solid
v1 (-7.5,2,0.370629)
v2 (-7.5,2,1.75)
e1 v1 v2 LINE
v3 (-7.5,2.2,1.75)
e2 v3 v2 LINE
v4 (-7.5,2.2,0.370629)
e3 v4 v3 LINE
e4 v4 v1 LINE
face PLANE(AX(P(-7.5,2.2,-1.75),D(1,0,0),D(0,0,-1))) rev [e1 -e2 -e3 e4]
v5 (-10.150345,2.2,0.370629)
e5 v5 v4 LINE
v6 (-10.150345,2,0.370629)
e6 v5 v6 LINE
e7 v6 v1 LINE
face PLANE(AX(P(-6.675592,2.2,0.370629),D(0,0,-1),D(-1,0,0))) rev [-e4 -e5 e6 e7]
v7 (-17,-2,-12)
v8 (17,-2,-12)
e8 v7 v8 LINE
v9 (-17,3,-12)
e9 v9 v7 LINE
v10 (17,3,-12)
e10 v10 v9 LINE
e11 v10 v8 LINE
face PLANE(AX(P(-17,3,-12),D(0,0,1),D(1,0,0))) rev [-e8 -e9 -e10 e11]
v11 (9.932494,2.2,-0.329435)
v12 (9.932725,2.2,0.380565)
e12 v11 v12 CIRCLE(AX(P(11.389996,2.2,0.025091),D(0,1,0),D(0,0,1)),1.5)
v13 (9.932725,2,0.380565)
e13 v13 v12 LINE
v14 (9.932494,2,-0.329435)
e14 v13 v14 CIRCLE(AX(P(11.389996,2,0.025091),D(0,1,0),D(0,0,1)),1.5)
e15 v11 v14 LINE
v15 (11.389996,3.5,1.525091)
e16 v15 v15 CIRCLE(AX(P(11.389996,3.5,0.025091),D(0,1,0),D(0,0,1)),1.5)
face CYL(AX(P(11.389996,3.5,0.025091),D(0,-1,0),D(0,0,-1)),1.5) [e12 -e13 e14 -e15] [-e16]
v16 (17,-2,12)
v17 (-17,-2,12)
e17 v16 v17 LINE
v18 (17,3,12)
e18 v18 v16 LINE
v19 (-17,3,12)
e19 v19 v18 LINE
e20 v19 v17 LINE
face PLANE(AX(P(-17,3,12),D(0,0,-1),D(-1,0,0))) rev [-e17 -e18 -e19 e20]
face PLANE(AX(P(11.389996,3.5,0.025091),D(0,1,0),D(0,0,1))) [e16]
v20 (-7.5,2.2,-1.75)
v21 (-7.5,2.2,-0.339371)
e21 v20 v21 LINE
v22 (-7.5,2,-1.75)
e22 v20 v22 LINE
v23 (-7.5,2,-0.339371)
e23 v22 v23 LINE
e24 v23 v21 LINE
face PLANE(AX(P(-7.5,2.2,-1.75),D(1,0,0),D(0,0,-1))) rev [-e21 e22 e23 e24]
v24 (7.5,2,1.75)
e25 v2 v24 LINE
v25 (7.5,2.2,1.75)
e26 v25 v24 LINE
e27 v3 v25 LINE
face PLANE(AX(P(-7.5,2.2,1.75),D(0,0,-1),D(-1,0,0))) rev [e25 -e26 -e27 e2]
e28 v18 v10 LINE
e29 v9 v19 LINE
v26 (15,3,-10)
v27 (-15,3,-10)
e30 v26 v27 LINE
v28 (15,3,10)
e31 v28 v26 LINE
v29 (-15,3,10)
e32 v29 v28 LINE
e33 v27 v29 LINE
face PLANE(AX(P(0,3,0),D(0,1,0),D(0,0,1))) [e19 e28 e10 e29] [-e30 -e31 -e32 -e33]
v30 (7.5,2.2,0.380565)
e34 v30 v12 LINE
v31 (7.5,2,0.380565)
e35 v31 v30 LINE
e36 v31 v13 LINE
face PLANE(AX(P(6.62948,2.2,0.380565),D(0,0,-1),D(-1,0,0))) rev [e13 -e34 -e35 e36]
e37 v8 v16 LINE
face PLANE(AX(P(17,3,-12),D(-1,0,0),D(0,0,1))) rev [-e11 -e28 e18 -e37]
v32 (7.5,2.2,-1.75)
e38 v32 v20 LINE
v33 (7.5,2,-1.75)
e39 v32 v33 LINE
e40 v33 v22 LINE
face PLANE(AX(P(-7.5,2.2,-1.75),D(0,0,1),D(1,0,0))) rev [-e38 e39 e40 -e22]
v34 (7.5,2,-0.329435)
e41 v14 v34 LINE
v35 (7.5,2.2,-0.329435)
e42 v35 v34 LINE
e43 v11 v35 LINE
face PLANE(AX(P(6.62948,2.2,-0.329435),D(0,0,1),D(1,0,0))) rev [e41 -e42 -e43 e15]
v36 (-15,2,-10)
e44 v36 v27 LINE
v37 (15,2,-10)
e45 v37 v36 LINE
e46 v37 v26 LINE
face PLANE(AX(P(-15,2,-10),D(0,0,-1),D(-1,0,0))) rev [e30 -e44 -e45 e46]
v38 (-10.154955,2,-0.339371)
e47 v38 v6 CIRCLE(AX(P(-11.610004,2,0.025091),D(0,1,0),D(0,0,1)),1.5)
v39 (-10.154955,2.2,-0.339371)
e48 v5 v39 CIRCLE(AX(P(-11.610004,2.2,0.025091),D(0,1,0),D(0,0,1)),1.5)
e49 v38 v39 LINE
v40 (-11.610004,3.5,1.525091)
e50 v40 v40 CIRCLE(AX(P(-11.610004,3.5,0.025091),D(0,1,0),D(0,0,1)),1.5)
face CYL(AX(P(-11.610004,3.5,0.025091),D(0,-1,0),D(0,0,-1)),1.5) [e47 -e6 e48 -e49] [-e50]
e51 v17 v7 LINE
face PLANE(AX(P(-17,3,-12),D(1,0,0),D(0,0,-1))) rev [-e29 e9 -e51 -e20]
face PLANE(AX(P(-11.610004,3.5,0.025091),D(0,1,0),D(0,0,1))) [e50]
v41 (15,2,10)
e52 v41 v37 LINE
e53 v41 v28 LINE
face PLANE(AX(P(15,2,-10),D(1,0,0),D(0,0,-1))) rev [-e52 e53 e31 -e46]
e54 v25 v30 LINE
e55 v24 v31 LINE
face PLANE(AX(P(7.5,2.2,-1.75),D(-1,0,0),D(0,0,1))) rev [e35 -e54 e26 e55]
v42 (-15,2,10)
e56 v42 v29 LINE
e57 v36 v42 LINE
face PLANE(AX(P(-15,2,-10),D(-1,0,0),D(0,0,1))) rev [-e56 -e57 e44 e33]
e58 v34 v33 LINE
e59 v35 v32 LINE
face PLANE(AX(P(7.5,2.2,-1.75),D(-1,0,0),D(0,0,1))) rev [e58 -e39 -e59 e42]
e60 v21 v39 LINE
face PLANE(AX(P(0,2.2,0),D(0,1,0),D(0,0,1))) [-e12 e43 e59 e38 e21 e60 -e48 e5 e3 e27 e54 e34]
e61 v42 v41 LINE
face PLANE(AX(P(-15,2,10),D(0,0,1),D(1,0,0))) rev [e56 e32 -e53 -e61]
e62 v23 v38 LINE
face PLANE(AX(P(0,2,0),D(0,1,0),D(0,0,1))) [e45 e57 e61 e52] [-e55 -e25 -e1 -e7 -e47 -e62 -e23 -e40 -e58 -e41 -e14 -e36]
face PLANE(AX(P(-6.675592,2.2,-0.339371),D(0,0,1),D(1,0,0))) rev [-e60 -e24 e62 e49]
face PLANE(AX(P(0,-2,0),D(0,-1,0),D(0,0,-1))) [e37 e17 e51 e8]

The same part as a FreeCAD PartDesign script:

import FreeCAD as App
import Part
import Sketcher


def add_polygon(sketch, points):
    """Adds a closed chain of lines whose ends are joined by coincident constraints."""
    first, n = sketch.GeometryCount, len(points)
    for a, b in zip(points, points[1:] + points[:1]):
        sketch.addGeometry(Part.LineSegment(App.Vector(*a, 0), App.Vector(*b, 0)), False)
    for i in range(n):
        sketch.addConstraint(Sketcher.Constraint("Coincident", first + i, 2, first + (i + 1) % n, 1))

doc = App.newDocument("Part")
params = doc.addObject("Spreadsheet::Sheet", "Params")
for row, (alias, value) in enumerate([
    ("sketch1_width", "34 mm"),
    ("sketch1_height", "24 mm"),
    ("pad1_length", "3 mm"),
    ("sketch2_width", "30 mm"),
    ("sketch2_height", "20 mm"),
    ("pocket1_length", "1 mm"),
    ("sketch3_diameter", "3 mm"),
    ("pad2_length", "1.5 mm"),
    ("linearpattern_pitch", "23 mm"),
    ("sketch4_width", "5 mm"),
    ("sketch4_height", "0.71 mm"),
    ("pad3_length", "0.2 mm"),
    ("sketch5_width", "5 mm"),
    ("sketch5_height", "0.71 mm"),
    ("pad4_length", "0.2 mm"),
    ("sketch6_width", "15 mm"),
    ("sketch6_height", "3.5 mm"),
    ("pad5_length", "0.2 mm"),
    ("sketch7_width", "34 mm"),
    ("sketch7_height", "24 mm"),
    ("pad6_length", "2 mm"),
], start=1):
    params.set(f"A{row}", alias)
    params.set(f"B{row}", "=" + value)
    params.setAlias(f"B{row}", alias)

body = doc.addObject("PartDesign::Body", "Body")

# Sketch on XZ plane
sketch1 = body.newObject("Sketcher::SketchObject", "Sketch")
sketch1.AttachmentSupport = (doc.getObject("XZ_Plane"), [""])
sketch1.MapMode = "FlatFace"
add_polygon(sketch1, [(-17, -12), (-17, 12), (17, 12), (17, -12)])  # lines 0-3
sketch1.addConstraint([
    Sketcher.Constraint("Vertical", 0),
    Sketcher.Constraint("Horizontal", 1),
    Sketcher.Constraint("Vertical", 2),
    Sketcher.Constraint("Horizontal", 3),
    Sketcher.Constraint("Symmetric", 0, 2, 2, 2, -1, 1),
    Sketcher.Constraint("DistanceX", 1, 1, 1, 2, 34.0),
    Sketcher.Constraint("DistanceY", 0, 1, 0, 2, 24.0),
])
sketch1.setExpression("Constraints[9]", "Params.sketch1_width")
sketch1.setExpression("Constraints[10]", "Params.sketch1_height")
pad1 = body.newObject("PartDesign::Pad", "Pad")
pad1.Profile = sketch1
pad1.setExpression("Length", "Params.pad1_length")
pad1.Reversed = True

# Sketch on XZ plane
sketch2 = body.newObject("Sketcher::SketchObject", "Sketch001")
sketch2.AttachmentSupport = (doc.getObject("XZ_Plane"), [""])
sketch2.MapMode = "FlatFace"
sketch2.AttachmentOffset = App.Placement(App.Vector(0, 0, -3), App.Rotation())
add_polygon(sketch2, [(-15, -10), (-15, 10), (15, 10), (15, -10)])  # lines 0-3
sketch2.addConstraint([
    Sketcher.Constraint("Vertical", 0),
    Sketcher.Constraint("Horizontal", 1),
    Sketcher.Constraint("Vertical", 2),
    Sketcher.Constraint("Horizontal", 3),
    Sketcher.Constraint("Symmetric", 0, 2, 2, 2, -1, 1),
    Sketcher.Constraint("DistanceX", 1, 1, 1, 2, 30.0),
    Sketcher.Constraint("DistanceY", 0, 1, 0, 2, 20.0),
])
sketch2.setExpression("Constraints[9]", "Params.sketch2_width")
sketch2.setExpression("Constraints[10]", "Params.sketch2_height")
pocket1 = body.newObject("PartDesign::Pocket", "Pocket")
pocket1.Profile = sketch2
pocket1.setExpression("Length", "Params.pocket1_length")
pocket1.Reversed = True

# Sketch on XZ plane
sketch3 = body.newObject("Sketcher::SketchObject", "Sketch002")
sketch3.AttachmentSupport = (doc.getObject("XZ_Plane"), [""])
sketch3.MapMode = "FlatFace"
sketch3.AttachmentOffset = App.Placement(App.Vector(0, 0, -2), App.Rotation())
sketch3.addGeometry(Part.Circle(App.Vector(-11.610004, 0.025091, 0), App.Vector(0, 0, 1), 1.5), False)
sketch3.addConstraint([
    Sketcher.Constraint("Diameter", 0, 3.0),
    Sketcher.Constraint("DistanceY", -1, 1, 0, 3, 0.025091),
    Sketcher.Constraint("DistanceX", 0, 3, -1, 1, 11.610004),
])
sketch3.setExpression("Constraints[0]", "Params.sketch3_diameter")
pad2 = body.newObject("PartDesign::Pad", "Pad001")
pad2.Profile = sketch3
pad2.setExpression("Length", "Params.pad2_length")
pad2.Reversed = True
doc.recompute()

linearpattern = body.newObject("PartDesign::LinearPattern", "LinearPattern")
linearpattern.Originals = [pad2]
linearpattern.Direction = (doc.getObject("X_Axis"), [""])
linearpattern.Mode = "offset"
linearpattern.setExpression("Offset", "Params.linearpattern_pitch")
linearpattern.Occurrences = 2
body.Tip = linearpattern

# Sketch on XZ plane
sketch4 = body.newObject("Sketcher::SketchObject", "Sketch003")
sketch4.AttachmentSupport = (doc.getObject("XZ_Plane"), [""])
sketch4.MapMode = "FlatFace"
sketch4.AttachmentOffset = App.Placement(App.Vector(0, 0, -2), App.Rotation())
add_polygon(sketch4, [(-11.675592, -0.339371), (-11.675592, 0.370629), (-6.675592, 0.370629), (-6.675592, -0.339371)])  # lines 0-3
sketch4.addConstraint([
    Sketcher.Constraint("Vertical", 0),
    Sketcher.Constraint("Horizontal", 1),
    Sketcher.Constraint("Vertical", 2),
    Sketcher.Constraint("Horizontal", 3),
    Sketcher.Constraint("DistanceX", 1, 1, 1, 2, 5.0),
    Sketcher.Constraint("DistanceY", 0, 1, 0, 2, 0.71),
    Sketcher.Constraint("DistanceX", 0, 2, -1, 1, 11.675592),
    Sketcher.Constraint("DistanceY", -1, 1, 0, 2, 0.370629),
])
sketch4.setExpression("Constraints[8]", "Params.sketch4_width")
sketch4.setExpression("Constraints[9]", "Params.sketch4_height")
pad3 = body.newObject("PartDesign::Pad", "Pad002")
pad3.Profile = sketch4
pad3.setExpression("Length", "Params.pad3_length")
pad3.Reversed = True

# Sketch on XZ plane
sketch5 = body.newObject("Sketcher::SketchObject", "Sketch004")
sketch5.AttachmentSupport = (doc.getObject("XZ_Plane"), [""])
sketch5.MapMode = "FlatFace"
sketch5.AttachmentOffset = App.Placement(App.Vector(0, 0, -2), App.Rotation())
add_polygon(sketch5, [(6.62948, -0.329435), (6.62948, 0.380565), (11.62948, 0.380565), (11.62948, -0.329435)])  # lines 0-3
sketch5.addConstraint([
    Sketcher.Constraint("Vertical", 0),
    Sketcher.Constraint("Horizontal", 1),
    Sketcher.Constraint("Vertical", 2),
    Sketcher.Constraint("Horizontal", 3),
    Sketcher.Constraint("DistanceX", 1, 1, 1, 2, 5.0),
    Sketcher.Constraint("DistanceY", 0, 1, 0, 2, 0.71),
    Sketcher.Constraint("DistanceX", -1, 1, 0, 2, 6.62948),
    Sketcher.Constraint("DistanceY", -1, 1, 0, 2, 0.380565),
])
sketch5.setExpression("Constraints[8]", "Params.sketch5_width")
sketch5.setExpression("Constraints[9]", "Params.sketch5_height")
pad4 = body.newObject("PartDesign::Pad", "Pad003")
pad4.Profile = sketch5
pad4.setExpression("Length", "Params.pad4_length")
pad4.Reversed = True

# Sketch on XZ plane
sketch6 = body.newObject("Sketcher::SketchObject", "Sketch005")
sketch6.AttachmentSupport = (doc.getObject("XZ_Plane"), [""])
sketch6.MapMode = "FlatFace"
sketch6.AttachmentOffset = App.Placement(App.Vector(0, 0, -2), App.Rotation())
add_polygon(sketch6, [(-7.5, -1.75), (-7.5, 1.75), (7.5, 1.75), (7.5, -1.75)])  # lines 0-3
sketch6.addConstraint([
    Sketcher.Constraint("Vertical", 0),
    Sketcher.Constraint("Horizontal", 1),
    Sketcher.Constraint("Vertical", 2),
    Sketcher.Constraint("Horizontal", 3),
    Sketcher.Constraint("Symmetric", 0, 2, 2, 2, -1, 1),
    Sketcher.Constraint("DistanceX", 1, 1, 1, 2, 15.0),
    Sketcher.Constraint("DistanceY", 0, 1, 0, 2, 3.5),
])
sketch6.setExpression("Constraints[9]", "Params.sketch6_width")
sketch6.setExpression("Constraints[10]", "Params.sketch6_height")
pad5 = body.newObject("PartDesign::Pad", "Pad004")
pad5.Profile = sketch6
pad5.setExpression("Length", "Params.pad5_length")
pad5.Reversed = True

# Sketch on XZ plane
sketch7 = body.newObject("Sketcher::SketchObject", "Sketch006")
sketch7.AttachmentSupport = (doc.getObject("XZ_Plane"), [""])
sketch7.MapMode = "FlatFace"
add_polygon(sketch7, [(-17, 12), (-17, -12), (17, -12), (17, 12)])  # lines 0-3
sketch7.addConstraint([
    Sketcher.Constraint("Vertical", 0),
    Sketcher.Constraint("Horizontal", 1),
    Sketcher.Constraint("Vertical", 2),
    Sketcher.Constraint("Horizontal", 3),
    Sketcher.Constraint("Symmetric", 0, 2, 2, 2, -1, 1),
    Sketcher.Constraint("DistanceX", 1, 1, 1, 2, 34.0),
    Sketcher.Constraint("DistanceY", 0, 2, 0, 1, 24.0),
])
sketch7.setExpression("Constraints[9]", "Params.sketch7_width")
sketch7.setExpression("Constraints[10]", "Params.sketch7_height")
pad6 = body.newObject("PartDesign::Pad", "Pad005")
pad6.Profile = sketch7
pad6.setExpression("Length", "Params.pad6_length")

doc.recompute()
